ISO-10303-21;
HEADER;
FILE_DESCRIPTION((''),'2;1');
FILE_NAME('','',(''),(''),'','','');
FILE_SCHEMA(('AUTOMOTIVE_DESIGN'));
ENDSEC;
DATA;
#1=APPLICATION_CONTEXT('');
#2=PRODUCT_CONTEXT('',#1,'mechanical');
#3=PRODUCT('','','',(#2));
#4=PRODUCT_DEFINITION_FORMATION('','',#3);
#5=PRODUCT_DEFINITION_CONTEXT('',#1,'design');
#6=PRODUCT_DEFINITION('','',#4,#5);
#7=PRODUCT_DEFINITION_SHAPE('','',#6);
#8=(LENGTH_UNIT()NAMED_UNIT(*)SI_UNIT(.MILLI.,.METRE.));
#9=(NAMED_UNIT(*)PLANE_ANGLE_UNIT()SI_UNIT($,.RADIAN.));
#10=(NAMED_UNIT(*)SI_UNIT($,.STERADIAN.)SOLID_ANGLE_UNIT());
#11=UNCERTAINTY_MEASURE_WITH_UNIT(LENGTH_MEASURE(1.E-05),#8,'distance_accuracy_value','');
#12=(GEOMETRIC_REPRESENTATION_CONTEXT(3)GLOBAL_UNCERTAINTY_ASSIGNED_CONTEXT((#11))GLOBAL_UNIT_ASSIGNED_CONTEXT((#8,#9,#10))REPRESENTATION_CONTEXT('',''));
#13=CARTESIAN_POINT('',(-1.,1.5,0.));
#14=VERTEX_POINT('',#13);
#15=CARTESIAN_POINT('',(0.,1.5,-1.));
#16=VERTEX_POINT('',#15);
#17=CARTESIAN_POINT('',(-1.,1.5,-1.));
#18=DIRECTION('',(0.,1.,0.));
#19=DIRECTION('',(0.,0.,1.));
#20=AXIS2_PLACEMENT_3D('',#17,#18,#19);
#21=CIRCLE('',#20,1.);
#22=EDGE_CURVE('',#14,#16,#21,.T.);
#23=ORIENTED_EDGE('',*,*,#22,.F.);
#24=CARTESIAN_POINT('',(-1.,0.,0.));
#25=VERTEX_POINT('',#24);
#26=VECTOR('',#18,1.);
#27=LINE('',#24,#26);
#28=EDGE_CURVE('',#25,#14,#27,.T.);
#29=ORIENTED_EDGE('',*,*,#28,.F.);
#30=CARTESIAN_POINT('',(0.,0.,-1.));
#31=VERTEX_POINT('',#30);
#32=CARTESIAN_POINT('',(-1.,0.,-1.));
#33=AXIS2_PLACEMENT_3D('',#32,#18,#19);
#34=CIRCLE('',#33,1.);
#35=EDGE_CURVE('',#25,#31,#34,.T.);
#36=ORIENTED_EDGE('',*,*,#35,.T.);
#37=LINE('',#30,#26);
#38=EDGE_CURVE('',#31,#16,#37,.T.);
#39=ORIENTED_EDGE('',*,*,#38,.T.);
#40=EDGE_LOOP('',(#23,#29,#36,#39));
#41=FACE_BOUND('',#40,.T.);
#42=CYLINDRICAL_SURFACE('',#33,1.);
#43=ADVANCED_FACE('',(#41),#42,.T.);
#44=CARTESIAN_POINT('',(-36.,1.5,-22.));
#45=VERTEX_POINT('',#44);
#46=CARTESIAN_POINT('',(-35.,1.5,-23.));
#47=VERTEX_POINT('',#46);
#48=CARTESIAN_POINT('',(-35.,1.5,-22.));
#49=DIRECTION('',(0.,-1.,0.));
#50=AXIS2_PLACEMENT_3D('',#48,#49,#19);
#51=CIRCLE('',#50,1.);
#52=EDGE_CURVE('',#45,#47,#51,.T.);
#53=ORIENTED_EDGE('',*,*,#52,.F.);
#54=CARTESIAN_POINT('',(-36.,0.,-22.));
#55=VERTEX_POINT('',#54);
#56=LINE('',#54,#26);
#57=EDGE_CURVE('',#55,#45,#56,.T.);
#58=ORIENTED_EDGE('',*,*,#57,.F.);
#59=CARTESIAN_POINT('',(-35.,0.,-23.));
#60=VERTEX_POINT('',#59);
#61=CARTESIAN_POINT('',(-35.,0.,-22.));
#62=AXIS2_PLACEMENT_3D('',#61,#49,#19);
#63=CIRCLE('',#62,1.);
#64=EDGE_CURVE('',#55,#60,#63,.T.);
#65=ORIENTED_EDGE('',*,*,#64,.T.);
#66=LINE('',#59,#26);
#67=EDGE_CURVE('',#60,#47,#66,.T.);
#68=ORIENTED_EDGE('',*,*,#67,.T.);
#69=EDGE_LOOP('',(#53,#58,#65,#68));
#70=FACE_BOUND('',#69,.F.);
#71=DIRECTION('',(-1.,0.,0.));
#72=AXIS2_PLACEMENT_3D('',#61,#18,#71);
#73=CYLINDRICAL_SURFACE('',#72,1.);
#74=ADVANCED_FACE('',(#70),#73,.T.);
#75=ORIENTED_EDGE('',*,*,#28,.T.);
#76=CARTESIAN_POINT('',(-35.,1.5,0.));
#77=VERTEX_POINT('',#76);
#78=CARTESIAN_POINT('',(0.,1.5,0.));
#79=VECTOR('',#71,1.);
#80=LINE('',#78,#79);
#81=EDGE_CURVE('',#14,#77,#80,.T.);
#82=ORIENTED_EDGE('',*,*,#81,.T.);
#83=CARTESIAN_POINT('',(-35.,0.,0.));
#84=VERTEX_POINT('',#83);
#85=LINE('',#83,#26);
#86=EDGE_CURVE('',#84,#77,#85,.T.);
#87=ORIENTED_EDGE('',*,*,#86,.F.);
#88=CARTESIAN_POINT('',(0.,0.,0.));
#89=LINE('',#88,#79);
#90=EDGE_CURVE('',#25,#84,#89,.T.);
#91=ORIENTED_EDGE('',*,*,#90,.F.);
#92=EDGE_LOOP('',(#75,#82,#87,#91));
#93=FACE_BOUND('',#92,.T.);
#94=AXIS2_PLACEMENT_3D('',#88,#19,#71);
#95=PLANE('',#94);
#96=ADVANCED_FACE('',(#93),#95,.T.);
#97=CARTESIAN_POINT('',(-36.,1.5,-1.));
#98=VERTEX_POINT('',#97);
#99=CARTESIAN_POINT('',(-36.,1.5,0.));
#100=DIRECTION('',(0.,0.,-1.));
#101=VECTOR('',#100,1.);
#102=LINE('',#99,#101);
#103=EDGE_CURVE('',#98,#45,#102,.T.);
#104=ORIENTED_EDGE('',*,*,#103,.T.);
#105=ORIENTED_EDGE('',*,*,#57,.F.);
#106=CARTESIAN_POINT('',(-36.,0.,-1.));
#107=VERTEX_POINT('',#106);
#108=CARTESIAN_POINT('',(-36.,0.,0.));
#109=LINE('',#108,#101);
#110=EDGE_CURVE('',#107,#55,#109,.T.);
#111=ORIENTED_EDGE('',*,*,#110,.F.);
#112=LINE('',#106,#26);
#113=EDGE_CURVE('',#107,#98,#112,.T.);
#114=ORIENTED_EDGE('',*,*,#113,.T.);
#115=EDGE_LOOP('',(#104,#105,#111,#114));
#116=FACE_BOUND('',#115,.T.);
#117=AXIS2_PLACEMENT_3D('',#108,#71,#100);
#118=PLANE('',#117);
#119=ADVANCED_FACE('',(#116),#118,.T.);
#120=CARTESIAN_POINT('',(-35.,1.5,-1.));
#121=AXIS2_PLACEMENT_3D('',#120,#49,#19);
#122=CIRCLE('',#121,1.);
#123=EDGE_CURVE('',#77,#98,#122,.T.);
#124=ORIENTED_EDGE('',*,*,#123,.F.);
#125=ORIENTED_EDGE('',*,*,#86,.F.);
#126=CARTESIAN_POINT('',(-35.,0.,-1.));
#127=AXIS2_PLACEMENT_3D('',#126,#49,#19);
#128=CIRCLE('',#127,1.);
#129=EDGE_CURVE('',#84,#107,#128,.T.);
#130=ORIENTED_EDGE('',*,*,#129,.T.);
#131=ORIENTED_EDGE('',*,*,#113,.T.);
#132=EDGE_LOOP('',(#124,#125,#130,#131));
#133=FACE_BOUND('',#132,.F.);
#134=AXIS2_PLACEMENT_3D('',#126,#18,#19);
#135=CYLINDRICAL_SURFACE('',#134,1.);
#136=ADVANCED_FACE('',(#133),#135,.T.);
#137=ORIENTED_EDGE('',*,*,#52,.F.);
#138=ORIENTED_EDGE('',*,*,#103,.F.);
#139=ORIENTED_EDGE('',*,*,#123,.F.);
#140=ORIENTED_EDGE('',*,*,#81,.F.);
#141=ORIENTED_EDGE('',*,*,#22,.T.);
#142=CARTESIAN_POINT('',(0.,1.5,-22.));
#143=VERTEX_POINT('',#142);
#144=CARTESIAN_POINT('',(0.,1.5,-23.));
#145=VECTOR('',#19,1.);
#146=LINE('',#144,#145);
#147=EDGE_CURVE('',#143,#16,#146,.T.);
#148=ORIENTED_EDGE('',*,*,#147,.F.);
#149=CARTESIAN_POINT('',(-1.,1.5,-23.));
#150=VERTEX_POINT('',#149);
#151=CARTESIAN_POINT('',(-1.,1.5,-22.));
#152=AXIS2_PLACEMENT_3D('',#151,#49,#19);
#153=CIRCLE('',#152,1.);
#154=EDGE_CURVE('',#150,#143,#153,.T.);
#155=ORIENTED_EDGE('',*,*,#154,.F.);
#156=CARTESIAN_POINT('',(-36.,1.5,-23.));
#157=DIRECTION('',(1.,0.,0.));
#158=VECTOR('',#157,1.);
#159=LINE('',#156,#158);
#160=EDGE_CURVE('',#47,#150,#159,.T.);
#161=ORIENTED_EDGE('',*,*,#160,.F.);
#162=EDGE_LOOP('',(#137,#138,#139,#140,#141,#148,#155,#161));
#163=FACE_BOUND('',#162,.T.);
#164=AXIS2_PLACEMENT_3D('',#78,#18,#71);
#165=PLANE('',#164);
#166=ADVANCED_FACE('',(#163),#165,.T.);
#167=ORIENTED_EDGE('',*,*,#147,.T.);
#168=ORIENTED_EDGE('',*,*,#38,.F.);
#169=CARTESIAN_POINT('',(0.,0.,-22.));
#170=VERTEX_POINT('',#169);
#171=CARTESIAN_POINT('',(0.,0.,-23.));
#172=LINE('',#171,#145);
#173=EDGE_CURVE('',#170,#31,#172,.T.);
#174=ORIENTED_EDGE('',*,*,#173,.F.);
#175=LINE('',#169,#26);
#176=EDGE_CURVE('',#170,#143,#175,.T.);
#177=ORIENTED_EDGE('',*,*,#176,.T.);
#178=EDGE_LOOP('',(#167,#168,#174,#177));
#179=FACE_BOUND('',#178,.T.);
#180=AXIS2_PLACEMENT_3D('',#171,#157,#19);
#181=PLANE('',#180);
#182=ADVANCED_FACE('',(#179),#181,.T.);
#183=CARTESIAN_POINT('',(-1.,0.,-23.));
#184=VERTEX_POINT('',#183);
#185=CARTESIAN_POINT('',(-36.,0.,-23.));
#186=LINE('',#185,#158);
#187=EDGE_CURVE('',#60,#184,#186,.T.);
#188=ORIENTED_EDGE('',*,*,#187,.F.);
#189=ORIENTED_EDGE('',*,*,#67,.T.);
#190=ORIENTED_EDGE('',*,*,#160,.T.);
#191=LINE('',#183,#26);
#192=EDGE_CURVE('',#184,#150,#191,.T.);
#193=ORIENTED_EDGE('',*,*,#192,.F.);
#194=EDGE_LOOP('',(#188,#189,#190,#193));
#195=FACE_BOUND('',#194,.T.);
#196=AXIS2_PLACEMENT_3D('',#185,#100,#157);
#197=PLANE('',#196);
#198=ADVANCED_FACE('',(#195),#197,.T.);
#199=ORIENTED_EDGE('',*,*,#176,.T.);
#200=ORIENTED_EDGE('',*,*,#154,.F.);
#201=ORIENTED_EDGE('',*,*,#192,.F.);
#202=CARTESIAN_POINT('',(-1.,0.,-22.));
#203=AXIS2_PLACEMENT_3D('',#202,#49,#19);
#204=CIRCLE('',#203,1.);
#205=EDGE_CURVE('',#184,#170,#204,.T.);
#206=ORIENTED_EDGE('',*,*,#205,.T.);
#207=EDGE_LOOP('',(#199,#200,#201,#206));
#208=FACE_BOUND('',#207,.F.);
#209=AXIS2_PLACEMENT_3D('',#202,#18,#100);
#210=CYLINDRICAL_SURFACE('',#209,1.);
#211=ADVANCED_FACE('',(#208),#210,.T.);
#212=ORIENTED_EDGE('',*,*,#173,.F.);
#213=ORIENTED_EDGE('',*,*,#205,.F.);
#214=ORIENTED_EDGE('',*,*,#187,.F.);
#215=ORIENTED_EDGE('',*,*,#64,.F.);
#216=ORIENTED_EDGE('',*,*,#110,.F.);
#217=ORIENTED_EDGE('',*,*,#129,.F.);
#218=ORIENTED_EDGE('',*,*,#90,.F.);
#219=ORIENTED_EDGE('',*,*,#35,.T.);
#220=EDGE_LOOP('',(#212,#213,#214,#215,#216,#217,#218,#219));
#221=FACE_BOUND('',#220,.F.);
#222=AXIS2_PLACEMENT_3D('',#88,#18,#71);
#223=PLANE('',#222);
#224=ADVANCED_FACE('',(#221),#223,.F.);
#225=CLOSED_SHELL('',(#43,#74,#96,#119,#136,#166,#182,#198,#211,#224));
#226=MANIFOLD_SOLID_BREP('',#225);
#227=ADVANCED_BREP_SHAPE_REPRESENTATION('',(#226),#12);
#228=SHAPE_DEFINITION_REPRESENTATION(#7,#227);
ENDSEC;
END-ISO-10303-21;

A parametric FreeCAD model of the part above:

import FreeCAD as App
import Part
import Sketcher

V = App.Vector
Q = App.Units.Quantity


def edges_at(feature, points):
    """Names of the edges that pass closest to the given points."""
    edges = feature.Shape.Edges
    near = lambda p: min(range(len(edges)), key=lambda i: edges[i].distToShape(Part.Vertex(*p))[0])
    return sorted({f"Edge{near(p) + 1}" for p in points})

doc = App.newDocument("Part")
params = doc.addObject("Spreadsheet::Sheet", "Params")
for row, (alias, value) in enumerate([
    ("sketch1_width", "36 mm"),
    ("sketch1_height", "23 mm"),
    ("pad1_length", "1.5 mm"),
    ("fillet_radius", "1 mm"),
], start=1):
    params.set(f"A{row}", alias)
    params.set(f"B{row}", "=" + value)
    params.setAlias(f"B{row}", alias)

body = doc.addObject("PartDesign::Body", "Body")

# Sketch on XZ plane
sketch1 = body.newObject("Sketcher::SketchObject", "Sketch")
sketch1.AttachmentSupport = (doc.getObject("XZ_Plane"), [""])
sketch1.MapMode = "FlatFace"
sketch1.addGeometry(Part.LineSegment(V(-36, 0, 0), V(0, 0, 0)), False)
sketch1.addGeometry(Part.LineSegment(V(0, 0, 0), V(0, -23, 0)), False)
sketch1.addGeometry(Part.LineSegment(V(0, -23, 0), V(-36, -23, 0)), False)
sketch1.addGeometry(Part.LineSegment(V(-36, -23, 0), V(-36, 0, 0)), False)
sketch1.addConstraint(Sketcher.Constraint("Coincident", 0, 2, 1, 1))
sketch1.addConstraint(Sketcher.Constraint("Coincident", 1, 2, 2, 1))
sketch1.addConstraint(Sketcher.Constraint("Coincident", 2, 2, 3, 1))
sketch1.addConstraint(Sketcher.Constraint("Coincident", 3, 2, 0, 1))
sketch1.addConstraint(Sketcher.Constraint("Horizontal", 0))
sketch1.addConstraint(Sketcher.Constraint("Vertical", 1))
sketch1.addConstraint(Sketcher.Constraint("Horizontal", 2))
sketch1.addConstraint(Sketcher.Constraint("Vertical", 3))
sketch1.addConstraint(Sketcher.Constraint("Coincident", 0, 2, -1, 1))
sketch1.addConstraint(Sketcher.Constraint("DistanceX", 0, 1, 0, 2, Q("36 mm")))
sketch1.addConstraint(Sketcher.Constraint("DistanceY", 1, 2, 1, 1, Q("23 mm")))
sketch1.setExpression("Constraints[9]", "Params.sketch1_width")
sketch1.setExpression("Constraints[10]", "Params.sketch1_height")
pad1 = body.newObject("PartDesign::Pad", "Pad")
pad1.Profile = sketch1
pad1.setExpression("Length", "Params.pad1_length")
pad1.Reversed = True
doc.recompute()

fillet = body.newObject("PartDesign::Fillet", "Fillet")
fillet.Base = (pad1, edges_at(pad1, [
    (0, 0.75, 0),
    (0, 0.75, -23),
    (-36, 0.75, -23),
    (-36, 0.75, 0),
]))
fillet.setExpression("Radius", "Params.fillet_radius")

doc.recompute()
